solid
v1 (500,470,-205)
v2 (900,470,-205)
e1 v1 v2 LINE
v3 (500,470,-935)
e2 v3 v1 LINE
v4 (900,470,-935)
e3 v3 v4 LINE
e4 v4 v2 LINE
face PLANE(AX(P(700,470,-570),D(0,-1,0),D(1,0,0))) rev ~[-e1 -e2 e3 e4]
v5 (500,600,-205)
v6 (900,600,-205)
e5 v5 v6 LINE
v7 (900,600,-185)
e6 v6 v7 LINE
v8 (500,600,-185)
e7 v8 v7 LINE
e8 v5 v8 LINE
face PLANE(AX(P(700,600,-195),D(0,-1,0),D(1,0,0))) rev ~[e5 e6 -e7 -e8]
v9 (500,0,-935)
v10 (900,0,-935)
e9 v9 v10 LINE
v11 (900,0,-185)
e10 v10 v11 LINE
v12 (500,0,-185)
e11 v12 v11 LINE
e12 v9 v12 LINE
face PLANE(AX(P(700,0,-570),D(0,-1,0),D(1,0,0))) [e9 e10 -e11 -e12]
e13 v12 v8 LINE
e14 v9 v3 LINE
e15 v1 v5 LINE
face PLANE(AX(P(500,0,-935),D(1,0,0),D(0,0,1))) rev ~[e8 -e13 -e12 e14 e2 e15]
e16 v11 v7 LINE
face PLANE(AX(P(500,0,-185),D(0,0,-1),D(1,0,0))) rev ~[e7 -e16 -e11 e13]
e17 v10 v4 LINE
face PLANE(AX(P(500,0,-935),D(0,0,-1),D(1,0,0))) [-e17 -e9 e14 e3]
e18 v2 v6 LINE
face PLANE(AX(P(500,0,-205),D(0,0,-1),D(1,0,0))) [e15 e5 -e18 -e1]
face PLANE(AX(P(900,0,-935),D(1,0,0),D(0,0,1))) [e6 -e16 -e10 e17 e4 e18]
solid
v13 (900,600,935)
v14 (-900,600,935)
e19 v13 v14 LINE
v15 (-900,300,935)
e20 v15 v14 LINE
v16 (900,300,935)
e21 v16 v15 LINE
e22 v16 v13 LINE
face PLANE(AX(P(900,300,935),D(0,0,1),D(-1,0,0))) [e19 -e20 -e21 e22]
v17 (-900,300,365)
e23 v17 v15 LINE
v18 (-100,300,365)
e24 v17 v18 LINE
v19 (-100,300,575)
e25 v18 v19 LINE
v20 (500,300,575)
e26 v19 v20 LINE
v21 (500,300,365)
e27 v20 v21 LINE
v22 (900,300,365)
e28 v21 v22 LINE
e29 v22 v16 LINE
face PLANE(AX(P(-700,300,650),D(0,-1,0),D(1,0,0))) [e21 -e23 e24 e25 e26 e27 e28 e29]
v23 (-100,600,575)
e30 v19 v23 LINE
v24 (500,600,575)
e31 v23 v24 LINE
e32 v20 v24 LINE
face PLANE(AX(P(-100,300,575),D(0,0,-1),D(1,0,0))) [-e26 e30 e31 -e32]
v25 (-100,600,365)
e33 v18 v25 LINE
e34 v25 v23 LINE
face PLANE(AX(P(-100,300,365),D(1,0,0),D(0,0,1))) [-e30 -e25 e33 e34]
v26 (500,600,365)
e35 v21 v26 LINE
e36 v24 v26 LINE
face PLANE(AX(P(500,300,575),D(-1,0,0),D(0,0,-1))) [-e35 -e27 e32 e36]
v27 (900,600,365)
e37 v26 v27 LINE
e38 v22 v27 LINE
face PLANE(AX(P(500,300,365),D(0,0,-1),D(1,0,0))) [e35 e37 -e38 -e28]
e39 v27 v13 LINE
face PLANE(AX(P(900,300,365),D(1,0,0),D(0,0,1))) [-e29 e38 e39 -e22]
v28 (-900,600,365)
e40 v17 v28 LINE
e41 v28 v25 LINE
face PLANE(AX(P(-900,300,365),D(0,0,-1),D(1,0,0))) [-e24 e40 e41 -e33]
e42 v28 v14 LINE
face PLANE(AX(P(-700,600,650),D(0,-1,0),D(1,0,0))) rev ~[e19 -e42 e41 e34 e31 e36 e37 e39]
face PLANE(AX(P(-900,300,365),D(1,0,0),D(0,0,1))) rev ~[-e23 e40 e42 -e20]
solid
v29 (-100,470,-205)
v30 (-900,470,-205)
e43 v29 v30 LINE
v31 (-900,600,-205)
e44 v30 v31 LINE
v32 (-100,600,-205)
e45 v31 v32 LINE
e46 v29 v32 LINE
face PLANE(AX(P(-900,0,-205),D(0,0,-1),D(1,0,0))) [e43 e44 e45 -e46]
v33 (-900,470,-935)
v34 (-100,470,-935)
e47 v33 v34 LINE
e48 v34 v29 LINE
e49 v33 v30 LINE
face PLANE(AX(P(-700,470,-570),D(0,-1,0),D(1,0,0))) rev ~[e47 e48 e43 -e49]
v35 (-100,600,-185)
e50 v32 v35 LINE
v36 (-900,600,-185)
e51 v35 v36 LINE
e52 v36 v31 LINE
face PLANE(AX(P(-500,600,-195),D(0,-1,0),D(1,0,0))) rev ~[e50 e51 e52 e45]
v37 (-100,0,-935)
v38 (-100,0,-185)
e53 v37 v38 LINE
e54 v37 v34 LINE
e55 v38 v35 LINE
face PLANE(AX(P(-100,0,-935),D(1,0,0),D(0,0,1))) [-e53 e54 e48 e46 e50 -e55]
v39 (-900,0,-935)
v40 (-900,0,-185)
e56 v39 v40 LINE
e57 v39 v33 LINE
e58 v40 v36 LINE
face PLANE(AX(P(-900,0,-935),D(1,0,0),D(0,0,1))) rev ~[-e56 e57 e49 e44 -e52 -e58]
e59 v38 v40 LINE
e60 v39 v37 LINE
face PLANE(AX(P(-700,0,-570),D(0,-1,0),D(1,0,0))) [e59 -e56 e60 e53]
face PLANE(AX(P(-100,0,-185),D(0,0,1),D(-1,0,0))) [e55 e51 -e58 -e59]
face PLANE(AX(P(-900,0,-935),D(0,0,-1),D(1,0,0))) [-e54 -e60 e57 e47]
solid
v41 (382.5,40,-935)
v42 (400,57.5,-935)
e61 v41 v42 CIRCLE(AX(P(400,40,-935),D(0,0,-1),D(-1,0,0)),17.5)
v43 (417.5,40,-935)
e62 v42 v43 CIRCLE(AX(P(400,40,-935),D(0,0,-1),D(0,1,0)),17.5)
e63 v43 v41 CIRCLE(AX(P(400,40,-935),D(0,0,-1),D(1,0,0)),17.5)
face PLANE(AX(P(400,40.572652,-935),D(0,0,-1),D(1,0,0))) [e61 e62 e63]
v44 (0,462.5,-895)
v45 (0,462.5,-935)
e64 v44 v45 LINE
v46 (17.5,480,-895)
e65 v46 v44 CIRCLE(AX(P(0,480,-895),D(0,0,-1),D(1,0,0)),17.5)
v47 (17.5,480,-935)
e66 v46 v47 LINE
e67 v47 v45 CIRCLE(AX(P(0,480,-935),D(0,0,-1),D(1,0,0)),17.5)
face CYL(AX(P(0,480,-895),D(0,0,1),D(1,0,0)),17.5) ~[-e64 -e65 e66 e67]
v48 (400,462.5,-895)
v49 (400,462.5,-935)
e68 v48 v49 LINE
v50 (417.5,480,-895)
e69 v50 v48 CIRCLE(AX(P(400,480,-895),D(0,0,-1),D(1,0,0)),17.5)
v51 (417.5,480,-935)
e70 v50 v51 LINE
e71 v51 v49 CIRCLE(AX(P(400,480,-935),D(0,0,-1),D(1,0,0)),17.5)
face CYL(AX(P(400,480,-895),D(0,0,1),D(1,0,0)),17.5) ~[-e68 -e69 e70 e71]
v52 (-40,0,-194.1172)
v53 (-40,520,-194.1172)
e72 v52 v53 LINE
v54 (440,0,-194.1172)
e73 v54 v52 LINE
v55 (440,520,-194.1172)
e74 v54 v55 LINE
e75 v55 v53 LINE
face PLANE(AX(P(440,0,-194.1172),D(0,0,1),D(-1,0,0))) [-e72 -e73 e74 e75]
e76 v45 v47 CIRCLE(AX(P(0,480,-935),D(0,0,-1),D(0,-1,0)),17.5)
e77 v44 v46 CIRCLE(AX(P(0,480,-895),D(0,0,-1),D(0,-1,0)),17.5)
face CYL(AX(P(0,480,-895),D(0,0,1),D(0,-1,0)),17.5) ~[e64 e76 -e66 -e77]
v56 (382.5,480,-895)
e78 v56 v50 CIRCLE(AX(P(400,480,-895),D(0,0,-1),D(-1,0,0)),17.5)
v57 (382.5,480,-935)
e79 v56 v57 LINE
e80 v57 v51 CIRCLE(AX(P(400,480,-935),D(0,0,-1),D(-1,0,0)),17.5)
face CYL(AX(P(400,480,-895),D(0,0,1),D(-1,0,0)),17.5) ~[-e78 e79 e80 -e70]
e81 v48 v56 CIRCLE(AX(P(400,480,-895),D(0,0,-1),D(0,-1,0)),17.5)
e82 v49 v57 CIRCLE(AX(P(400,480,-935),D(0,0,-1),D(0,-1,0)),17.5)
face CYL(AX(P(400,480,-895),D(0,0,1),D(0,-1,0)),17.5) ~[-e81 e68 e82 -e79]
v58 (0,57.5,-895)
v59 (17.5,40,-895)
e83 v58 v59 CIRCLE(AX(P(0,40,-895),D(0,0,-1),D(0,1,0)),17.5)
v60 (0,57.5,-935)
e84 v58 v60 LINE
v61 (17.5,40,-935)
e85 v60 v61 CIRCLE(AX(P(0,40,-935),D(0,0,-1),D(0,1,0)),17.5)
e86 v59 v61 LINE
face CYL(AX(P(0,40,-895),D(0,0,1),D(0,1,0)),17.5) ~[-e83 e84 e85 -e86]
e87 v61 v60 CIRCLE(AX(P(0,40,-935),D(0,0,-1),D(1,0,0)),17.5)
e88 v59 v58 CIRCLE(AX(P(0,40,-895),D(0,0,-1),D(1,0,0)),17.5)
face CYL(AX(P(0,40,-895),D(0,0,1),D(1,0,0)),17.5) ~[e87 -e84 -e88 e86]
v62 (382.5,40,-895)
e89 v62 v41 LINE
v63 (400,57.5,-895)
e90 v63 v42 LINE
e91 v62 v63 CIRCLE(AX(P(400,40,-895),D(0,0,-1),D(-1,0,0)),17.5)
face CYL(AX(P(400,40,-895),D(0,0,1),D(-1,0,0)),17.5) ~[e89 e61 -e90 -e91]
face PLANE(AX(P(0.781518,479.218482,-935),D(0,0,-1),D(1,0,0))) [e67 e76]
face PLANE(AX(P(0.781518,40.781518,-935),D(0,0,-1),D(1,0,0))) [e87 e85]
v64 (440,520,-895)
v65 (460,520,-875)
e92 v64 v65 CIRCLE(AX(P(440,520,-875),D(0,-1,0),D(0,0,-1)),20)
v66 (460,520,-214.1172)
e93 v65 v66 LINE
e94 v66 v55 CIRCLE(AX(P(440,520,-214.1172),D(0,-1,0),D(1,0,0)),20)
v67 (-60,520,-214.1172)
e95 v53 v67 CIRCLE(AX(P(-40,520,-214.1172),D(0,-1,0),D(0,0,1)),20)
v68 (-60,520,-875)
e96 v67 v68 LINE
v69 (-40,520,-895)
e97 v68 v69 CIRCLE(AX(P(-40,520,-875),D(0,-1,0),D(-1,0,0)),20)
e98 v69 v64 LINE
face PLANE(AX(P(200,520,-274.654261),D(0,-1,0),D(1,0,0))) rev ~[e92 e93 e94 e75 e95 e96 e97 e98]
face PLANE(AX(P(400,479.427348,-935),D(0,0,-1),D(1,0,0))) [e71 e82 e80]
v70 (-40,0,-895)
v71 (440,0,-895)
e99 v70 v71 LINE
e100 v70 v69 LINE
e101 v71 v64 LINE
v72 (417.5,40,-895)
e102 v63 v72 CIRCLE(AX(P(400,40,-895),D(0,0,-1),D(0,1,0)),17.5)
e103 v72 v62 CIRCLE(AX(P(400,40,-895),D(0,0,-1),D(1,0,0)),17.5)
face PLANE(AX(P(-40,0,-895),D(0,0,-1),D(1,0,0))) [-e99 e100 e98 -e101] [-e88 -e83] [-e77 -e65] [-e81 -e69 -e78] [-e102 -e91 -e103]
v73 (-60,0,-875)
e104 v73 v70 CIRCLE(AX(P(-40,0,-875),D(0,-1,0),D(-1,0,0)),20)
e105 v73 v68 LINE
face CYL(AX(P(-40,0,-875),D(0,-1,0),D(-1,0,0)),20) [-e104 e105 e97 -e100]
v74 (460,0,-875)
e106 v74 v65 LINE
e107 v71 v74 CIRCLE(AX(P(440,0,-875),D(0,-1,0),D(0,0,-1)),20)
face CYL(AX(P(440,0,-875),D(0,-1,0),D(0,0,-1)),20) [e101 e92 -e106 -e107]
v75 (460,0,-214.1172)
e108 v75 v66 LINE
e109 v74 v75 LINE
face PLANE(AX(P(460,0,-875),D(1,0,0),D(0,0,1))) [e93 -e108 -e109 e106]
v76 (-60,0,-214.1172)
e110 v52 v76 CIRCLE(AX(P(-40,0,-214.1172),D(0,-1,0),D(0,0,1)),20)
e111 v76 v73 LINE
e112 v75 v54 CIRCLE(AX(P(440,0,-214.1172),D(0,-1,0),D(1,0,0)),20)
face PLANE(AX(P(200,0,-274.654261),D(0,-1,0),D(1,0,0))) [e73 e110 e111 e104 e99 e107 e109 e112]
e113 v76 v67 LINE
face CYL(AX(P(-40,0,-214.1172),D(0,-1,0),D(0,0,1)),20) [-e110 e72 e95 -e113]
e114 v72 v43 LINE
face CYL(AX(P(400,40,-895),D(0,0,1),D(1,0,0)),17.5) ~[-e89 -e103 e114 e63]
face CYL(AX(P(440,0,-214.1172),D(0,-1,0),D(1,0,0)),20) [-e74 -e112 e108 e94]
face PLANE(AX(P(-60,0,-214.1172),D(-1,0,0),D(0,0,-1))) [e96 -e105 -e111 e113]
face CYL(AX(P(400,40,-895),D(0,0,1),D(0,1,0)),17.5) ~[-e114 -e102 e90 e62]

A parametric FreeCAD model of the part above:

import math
import FreeCAD as App
import Part
import Sketcher

V = App.Vector
Q = App.Units.Quantity

doc = App.newDocument("Part")
body = doc.addObject("PartDesign::Body", "Body")

# Sketch on XZ plane
sketch1 = body.newObject("Sketcher::SketchObject", "Sketch")
sketch1.AttachmentSupport = (doc.getObject("XZ_Plane"), [""])
sketch1.MapMode = "FlatFace"
sketch1.addGeometry([
    Part.LineSegment(V(-60, -214, 0), V(-60, -875, 0)),  # 0
    Part.ArcOfCircle(Part.Circle(V(-40, -875, 0), V(0, 0, 1), 20), math.radians(180), math.radians(270)),  # 1
    Part.LineSegment(V(-40, -895, 0), V(440, -895, 0)),  # 2
    Part.ArcOfCircle(Part.Circle(V(440, -875, 0), V(0, 0, 1), 20), math.radians(-90), math.radians(0)),  # 3
    Part.LineSegment(V(460, -875, 0), V(460, -214, 0)),  # 4
    Part.ArcOfCircle(Part.Circle(V(440, -214, 0), V(0, 0, 1), 20), math.radians(0), math.radians(90)),  # 5
    Part.LineSegment(V(440, -194, 0), V(-40, -194, 0)),  # 6
    Part.ArcOfCircle(Part.Circle(V(-40, -214, 0), V(0, 0, 1), 20), math.radians(90), math.radians(180)),  # 7
], False)
sketch1.addConstraint([
    Sketcher.Constraint("Tangent", 0, 2, 1, 1),
    Sketcher.Constraint("Tangent", 1, 2, 2, 1),
    Sketcher.Constraint("Tangent", 2, 2, 3, 1),
    Sketcher.Constraint("Tangent", 3, 2, 4, 1),
    Sketcher.Constraint("Tangent", 4, 2, 5, 1),
    Sketcher.Constraint("Tangent", 5, 2, 6, 1),
    Sketcher.Constraint("Tangent", 6, 2, 7, 1),
    Sketcher.Constraint("Tangent", 7, 2, 0, 1),
    Sketcher.Constraint("Vertical", 0),
    Sketcher.Constraint("Horizontal", 2),
    Sketcher.Constraint("Vertical", 4),
    Sketcher.Constraint("Horizontal", 6),
    Sketcher.Constraint("Equal", 1, 3),
    Sketcher.Constraint("Equal", 3, 5),
    Sketcher.Constraint("Equal", 5, 7),
    Sketcher.Constraint("Radius", 1, Q("20 mm")),
    Sketcher.Constraint("DistanceX", 2, 1, 2, 2, Q("480 mm")),
    Sketcher.Constraint("DistanceX", 1, 3, -1, 1, Q("40 mm")),
    Sketcher.Constraint("DistanceY", 1, 3, -1, 1, Q("875 mm")),
    Sketcher.Constraint("DistanceY", 0, 2, 0, 1, Q("660.8828 mm")),
])
pad1 = body.newObject("PartDesign::Pad", "Pad")
pad1.Profile = sketch1
pad1.Length = 520
pad1.Reversed = True

# Sketch on XY plane
sketch2 = body.newObject("Sketcher::SketchObject", "Sketch001")
sketch2.AttachmentSupport = (doc.getObject("XY_Plane"), [""])
sketch2.MapMode = "FlatFace"
sketch2.AttachmentOffset = App.Placement(V(0, 0, -895), App.Rotation())
sketch2.addGeometry([
    Part.ArcOfCircle(Part.Circle(V(0, 40, 0), V(0, 0, 1), 18), math.radians(0), math.radians(90)),  # 0
    Part.ArcOfCircle(Part.Circle(V(0, 40, 0), V(0, 0, 1), 18), math.radians(90), math.radians(360)),  # 1
    Part.ArcOfCircle(Part.Circle(V(400, 40, 0), V(0, 0, 1), 18), math.radians(180), math.radians(360)),  # 2
    Part.ArcOfCircle(Part.Circle(V(400, 40, 0), V(0, 0, 1), 18), math.radians(90), math.radians(180)),  # 3
    Part.ArcOfCircle(Part.Circle(V(400, 40, 0), V(0, 0, 1), 18), math.radians(0), math.radians(90)),  # 4
    Part.ArcOfCircle(Part.Circle(V(0, 480, 0), V(0, 0, 1), 18), math.radians(-90), math.radians(0)),  # 5
    Part.ArcOfCircle(Part.Circle(V(0, 480, 0), V(0, 0, 1), 18), math.radians(0), math.radians(270)),  # 6
    Part.ArcOfCircle(Part.Circle(V(400, 480, 0), V(0, 0, 1), 18), math.radians(-90), math.radians(0)),  # 7
    Part.ArcOfCircle(Part.Circle(V(400, 480, 0), V(0, 0, 1), 18), math.radians(180), math.radians(270)),  # 8
    Part.ArcOfCircle(Part.Circle(V(400, 480, 0), V(0, 0, 1), 18), math.radians(0), math.radians(180)),  # 9
], False)
sketch2.addConstraint([
    Sketcher.Constraint("Tangent", 0, 1, 1, 2),
    Sketcher.Constraint("Coincident", 1, 1, 0, 2),
    Sketcher.Constraint("Tangent", 2, 1, 3, 2),
    Sketcher.Constraint("Tangent", 3, 1, 4, 2),
    Sketcher.Constraint("Tangent", 4, 1, 2, 2),
    Sketcher.Constraint("Tangent", 5, 1, 6, 2),
    Sketcher.Constraint("Coincident", 6, 1, 5, 2),
    Sketcher.Constraint("Tangent", 7, 1, 8, 2),
    Sketcher.Constraint("Tangent", 8, 1, 9, 2),
    Sketcher.Constraint("Tangent", 9, 1, 7, 2),
    Sketcher.Constraint("Equal", 1, 2),
    Sketcher.Constraint("Equal", 4, 5),
    Sketcher.Constraint("Equal", 6, 7),
    Sketcher.Constraint("PointOnObject", 0, 3, -2),
    Sketcher.Constraint("PointOnObject", 5, 3, -2),
    Sketcher.Constraint("PointOnObject", 1, 1, -2),
    Sketcher.Constraint("PointOnObject", 5, 1, -2),
    Sketcher.Constraint("Horizontal", 1, 3, 2, 3),
    Sketcher.Constraint("Horizontal", 6, 3, 7, 3),
    Sketcher.Constraint("Horizontal", 4, 3, 0, 1),
    Sketcher.Constraint("Horizontal", 0, 1, 2, 1),
    Sketcher.Constraint("Horizontal", 2, 1, 4, 1),
    Sketcher.Constraint("Horizontal", 9, 3, 6, 1),
    Sketcher.Constraint("Horizontal", 6, 1, 8, 1),
    Sketcher.Constraint("Horizontal", 8, 1, 9, 1),
    Sketcher.Constraint("Vertical", 4, 3, 7, 3),
    Sketcher.Constraint("Vertical", 9, 3, 3, 1),
    Sketcher.Constraint("Vertical", 3, 1, 7, 1),
    Sketcher.Constraint("Radius", 0, Q("17.5 mm")),
    Sketcher.Constraint("DistanceY", -1, 1, 0, 3, Q("40 mm")),
    Sketcher.Constraint("DistanceX", -1, 1, 2, 3, Q("400 mm")),
    Sketcher.Constraint("DistanceY", -1, 1, 5, 3, Q("480 mm")),
])
pad2 = body.newObject("PartDesign::Pad", "Pad001")
pad2.Profile = sketch2
pad2.Length = 40
pad2.Reversed = True
body2 = doc.addObject("PartDesign::Body", "Body001")

# Sketch on XZ plane
sketch3 = body2.newObject("Sketcher::SketchObject", "Sketch002")
sketch3.AttachmentSupport = (doc.getObject("XZ_Plane001"), [""])
sketch3.MapMode = "FlatFace"
sketch3.addGeometry([
    Part.LineSegment(V(-900, -185, 0), V(-900, -205, 0)),
    Part.LineSegment(V(-900, -205, 0), V(-100, -205, 0)),
    Part.LineSegment(V(-100, -205, 0), V(-100, -185, 0)),
    Part.LineSegment(V(-100, -185, 0), V(-900, -185, 0)),
], False)
sketch3.addConstraint([
    Sketcher.Constraint("Coincident", 0, 2, 1, 1),
    Sketcher.Constraint("Coincident", 1, 2, 2, 1),
    Sketcher.Constraint("Coincident", 2, 2, 3, 1),
    Sketcher.Constraint("Coincident", 3, 2, 0, 1),
    Sketcher.Constraint("Vertical", 0),
    Sketcher.Constraint("Horizontal", 1),
    Sketcher.Constraint("Vertical", 2),
    Sketcher.Constraint("Horizontal", 3),
    Sketcher.Constraint("DistanceX", 1, 1, 1, 2, Q("800 mm")),
    Sketcher.Constraint("DistanceY", 0, 2, 0, 1, Q("20 mm")),
    Sketcher.Constraint("DistanceX", 0, 2, -1, 1, Q("900 mm")),
    Sketcher.Constraint("DistanceY", 0, 2, -1, 1, Q("205 mm")),
])
pad3 = body2.newObject("PartDesign::Pad", "Pad002")
pad3.Profile = sketch3
pad3.Length = 600
pad3.Reversed = True

# Sketch on XZ plane
sketch4 = body2.newObject("Sketcher::SketchObject", "Sketch003")
sketch4.AttachmentSupport = (doc.getObject("XZ_Plane001"), [""])
sketch4.MapMode = "FlatFace"
sketch4.addGeometry([
    Part.LineSegment(V(-900, -205, 0), V(-900, -935, 0)),
    Part.LineSegment(V(-900, -935, 0), V(-100, -935, 0)),
    Part.LineSegment(V(-100, -935, 0), V(-100, -205, 0)),
    Part.LineSegment(V(-100, -205, 0), V(-900, -205, 0)),
], False)
sketch4.addConstraint([
    Sketcher.Constraint("Coincident", 0, 2, 1, 1),
    Sketcher.Constraint("Coincident", 1, 2, 2, 1),
    Sketcher.Constraint("Coincident", 2, 2, 3, 1),
    Sketcher.Constraint("Coincident", 3, 2, 0, 1),
    Sketcher.Constraint("Vertical", 0),
    Sketcher.Constraint("Horizontal", 1),
    Sketcher.Constraint("Vertical", 2),
    Sketcher.Constraint("Horizontal", 3),
    Sketcher.Constraint("DistanceX", 1, 1, 1, 2, Q("800 mm")),
    Sketcher.Constraint("DistanceY", 0, 2, 0, 1, Q("730 mm")),
    Sketcher.Constraint("DistanceX", 0, 2, -1, 1, Q("900 mm")),
    Sketcher.Constraint("DistanceY", 0, 2, -1, 1, Q("935 mm")),
])
pad4 = body2.newObject("PartDesign::Pad", "Pad003")
pad4.Profile = sketch4
pad4.Length = 470
pad4.Reversed = True
body3 = doc.addObject("PartDesign::Body", "Body002")

# Sketch on XZ plane
sketch5 = body3.newObject("Sketcher::SketchObject", "Sketch004")
sketch5.AttachmentSupport = (doc.getObject("XZ_Plane002"), [""])
sketch5.MapMode = "FlatFace"
sketch5.addGeometry([
    Part.LineSegment(V(500, -185, 0), V(500, -205, 0)),
    Part.LineSegment(V(500, -205, 0), V(900, -205, 0)),
    Part.LineSegment(V(900, -205, 0), V(900, -185, 0)),
    Part.LineSegment(V(900, -185, 0), V(500, -185, 0)),
], False)
sketch5.addConstraint([
    Sketcher.Constraint("Coincident", 0, 2, 1, 1),
    Sketcher.Constraint("Coincident", 1, 2, 2, 1),
    Sketcher.Constraint("Coincident", 2, 2, 3, 1),
    Sketcher.Constraint("Coincident", 3, 2, 0, 1),
    Sketcher.Constraint("Vertical", 0),
    Sketcher.Constraint("Horizontal", 1),
    Sketcher.Constraint("Vertical", 2),
    Sketcher.Constraint("Horizontal", 3),
    Sketcher.Constraint("DistanceX", 1, 1, 1, 2, Q("400 mm")),
    Sketcher.Constraint("DistanceY", 0, 2, 0, 1, Q("20 mm")),
    Sketcher.Constraint("DistanceX", -1, 1, 0, 2, Q("500 mm")),
    Sketcher.Constraint("DistanceY", 0, 2, -1, 1, Q("205 mm")),
])
pad5 = body3.newObject("PartDesign::Pad", "Pad004")
pad5.Profile = sketch5
pad5.Length = 600
pad5.Reversed = True

# Sketch on XZ plane
sketch6 = body3.newObject("Sketcher::SketchObject", "Sketch005")
sketch6.AttachmentSupport = (doc.getObject("XZ_Plane002"), [""])
sketch6.MapMode = "FlatFace"
sketch6.addGeometry([
    Part.LineSegment(V(500, -205, 0), V(500, -935, 0)),
    Part.LineSegment(V(500, -935, 0), V(900, -935, 0)),
    Part.LineSegment(V(900, -935, 0), V(900, -205, 0)),
    Part.LineSegment(V(900, -205, 0), V(500, -205, 0)),
], False)
sketch6.addConstraint([
    Sketcher.Constraint("Coincident", 0, 2, 1, 1),
    Sketcher.Constraint("Coincident", 1, 2, 2, 1),
    Sketcher.Constraint("Coincident", 2, 2, 3, 1),
    Sketcher.Constraint("Coincident", 3, 2, 0, 1),
    Sketcher.Constraint("Vertical", 0),
    Sketcher.Constraint("Horizontal", 1),
    Sketcher.Constraint("Vertical", 2),
    Sketcher.Constraint("Horizontal", 3),
    Sketcher.Constraint("DistanceX", 1, 1, 1, 2, Q("400 mm")),
    Sketcher.Constraint("DistanceY", 0, 2, 0, 1, Q("730 mm")),
    Sketcher.Constraint("DistanceX", -1, 1, 0, 2, Q("500 mm")),
    Sketcher.Constraint("DistanceY", 0, 2, -1, 1, Q("935 mm")),
])
pad6 = body3.newObject("PartDesign::Pad", "Pad005")
pad6.Profile = sketch6
pad6.Length = 470
pad6.Reversed = True
body4 = doc.addObject("PartDesign::Body", "Body003")

# Sketch on XZ plane
sketch7 = body4.newObject("Sketcher::SketchObject", "Sketch006")
sketch7.AttachmentSupport = (doc.getObject("XZ_Plane003"), [""])
sketch7.MapMode = "FlatFace"
sketch7.AttachmentOffset = App.Placement(V(0, 0, -300), App.Rotation())
sketch7.addGeometry([
    Part.LineSegment(V(-900, 935, 0), V(-900, 365, 0)),  # 0
    Part.LineSegment(V(-900, 365, 0), V(-100, 365, 0)),  # 1
    Part.LineSegment(V(-100, 365, 0), V(-100, 575, 0)),  # 2
    Part.LineSegment(V(-100, 575, 0), V(500, 575, 0)),  # 3
    Part.LineSegment(V(500, 575, 0), V(500, 365, 0)),  # 4
    Part.LineSegment(V(500, 365, 0), V(900, 365, 0)),  # 5
    Part.LineSegment(V(900, 365, 0), V(900, 935, 0)),  # 6
    Part.LineSegment(V(900, 935, 0), V(-900, 935, 0)),  # 7
], False)
sketch7.addConstraint([
    Sketcher.Constraint("Coincident", 0, 2, 1, 1),
    Sketcher.Constraint("Coincident", 1, 2, 2, 1),
    Sketcher.Constraint("Coincident", 2, 2, 3, 1),
    Sketcher.Constraint("Coincident", 3, 2, 4, 1),
    Sketcher.Constraint("Coincident", 4, 2, 5, 1),
    Sketcher.Constraint("Coincident", 5, 2, 6, 1),
    Sketcher.Constraint("Coincident", 6, 2, 7, 1),
    Sketcher.Constraint("Coincident", 7, 2, 0, 1),
    Sketcher.Constraint("Vertical", 0),
    Sketcher.Constraint("Horizontal", 1),
    Sketcher.Constraint("Vertical", 2),
    Sketcher.Constraint("Horizontal", 3),
    Sketcher.Constraint("Vertical", 4),
    Sketcher.Constraint("Horizontal", 5),
    Sketcher.Constraint("Vertical", 6),
    Sketcher.Constraint("Horizontal", 7),
    Sketcher.Constraint("Symmetric", 0, 2, 5, 2, -2),
    Sketcher.Constraint("DistanceX", 1, 1, 1, 2, Q("800 mm")),
    Sketcher.Constraint("DistanceX", 3, 1, 3, 2, Q("600 mm")),
    Sketcher.Constraint("DistanceX", 5, 1, 5, 2, Q("400 mm")),
    Sketcher.Constraint("DistanceY", 0, 2, 0, 1, Q("570 mm")),
    Sketcher.Constraint("DistanceY", 2, 1, 2, 2, Q("210 mm")),
    Sketcher.Constraint("DistanceY", -1, 1, 0, 2, Q("365 mm")),
])
pad7 = body4.newObject("PartDesign::Pad", "Pad006")
pad7.Profile = sketch7
pad7.Length = 300
pad7.Reversed = True

doc.recompute()
